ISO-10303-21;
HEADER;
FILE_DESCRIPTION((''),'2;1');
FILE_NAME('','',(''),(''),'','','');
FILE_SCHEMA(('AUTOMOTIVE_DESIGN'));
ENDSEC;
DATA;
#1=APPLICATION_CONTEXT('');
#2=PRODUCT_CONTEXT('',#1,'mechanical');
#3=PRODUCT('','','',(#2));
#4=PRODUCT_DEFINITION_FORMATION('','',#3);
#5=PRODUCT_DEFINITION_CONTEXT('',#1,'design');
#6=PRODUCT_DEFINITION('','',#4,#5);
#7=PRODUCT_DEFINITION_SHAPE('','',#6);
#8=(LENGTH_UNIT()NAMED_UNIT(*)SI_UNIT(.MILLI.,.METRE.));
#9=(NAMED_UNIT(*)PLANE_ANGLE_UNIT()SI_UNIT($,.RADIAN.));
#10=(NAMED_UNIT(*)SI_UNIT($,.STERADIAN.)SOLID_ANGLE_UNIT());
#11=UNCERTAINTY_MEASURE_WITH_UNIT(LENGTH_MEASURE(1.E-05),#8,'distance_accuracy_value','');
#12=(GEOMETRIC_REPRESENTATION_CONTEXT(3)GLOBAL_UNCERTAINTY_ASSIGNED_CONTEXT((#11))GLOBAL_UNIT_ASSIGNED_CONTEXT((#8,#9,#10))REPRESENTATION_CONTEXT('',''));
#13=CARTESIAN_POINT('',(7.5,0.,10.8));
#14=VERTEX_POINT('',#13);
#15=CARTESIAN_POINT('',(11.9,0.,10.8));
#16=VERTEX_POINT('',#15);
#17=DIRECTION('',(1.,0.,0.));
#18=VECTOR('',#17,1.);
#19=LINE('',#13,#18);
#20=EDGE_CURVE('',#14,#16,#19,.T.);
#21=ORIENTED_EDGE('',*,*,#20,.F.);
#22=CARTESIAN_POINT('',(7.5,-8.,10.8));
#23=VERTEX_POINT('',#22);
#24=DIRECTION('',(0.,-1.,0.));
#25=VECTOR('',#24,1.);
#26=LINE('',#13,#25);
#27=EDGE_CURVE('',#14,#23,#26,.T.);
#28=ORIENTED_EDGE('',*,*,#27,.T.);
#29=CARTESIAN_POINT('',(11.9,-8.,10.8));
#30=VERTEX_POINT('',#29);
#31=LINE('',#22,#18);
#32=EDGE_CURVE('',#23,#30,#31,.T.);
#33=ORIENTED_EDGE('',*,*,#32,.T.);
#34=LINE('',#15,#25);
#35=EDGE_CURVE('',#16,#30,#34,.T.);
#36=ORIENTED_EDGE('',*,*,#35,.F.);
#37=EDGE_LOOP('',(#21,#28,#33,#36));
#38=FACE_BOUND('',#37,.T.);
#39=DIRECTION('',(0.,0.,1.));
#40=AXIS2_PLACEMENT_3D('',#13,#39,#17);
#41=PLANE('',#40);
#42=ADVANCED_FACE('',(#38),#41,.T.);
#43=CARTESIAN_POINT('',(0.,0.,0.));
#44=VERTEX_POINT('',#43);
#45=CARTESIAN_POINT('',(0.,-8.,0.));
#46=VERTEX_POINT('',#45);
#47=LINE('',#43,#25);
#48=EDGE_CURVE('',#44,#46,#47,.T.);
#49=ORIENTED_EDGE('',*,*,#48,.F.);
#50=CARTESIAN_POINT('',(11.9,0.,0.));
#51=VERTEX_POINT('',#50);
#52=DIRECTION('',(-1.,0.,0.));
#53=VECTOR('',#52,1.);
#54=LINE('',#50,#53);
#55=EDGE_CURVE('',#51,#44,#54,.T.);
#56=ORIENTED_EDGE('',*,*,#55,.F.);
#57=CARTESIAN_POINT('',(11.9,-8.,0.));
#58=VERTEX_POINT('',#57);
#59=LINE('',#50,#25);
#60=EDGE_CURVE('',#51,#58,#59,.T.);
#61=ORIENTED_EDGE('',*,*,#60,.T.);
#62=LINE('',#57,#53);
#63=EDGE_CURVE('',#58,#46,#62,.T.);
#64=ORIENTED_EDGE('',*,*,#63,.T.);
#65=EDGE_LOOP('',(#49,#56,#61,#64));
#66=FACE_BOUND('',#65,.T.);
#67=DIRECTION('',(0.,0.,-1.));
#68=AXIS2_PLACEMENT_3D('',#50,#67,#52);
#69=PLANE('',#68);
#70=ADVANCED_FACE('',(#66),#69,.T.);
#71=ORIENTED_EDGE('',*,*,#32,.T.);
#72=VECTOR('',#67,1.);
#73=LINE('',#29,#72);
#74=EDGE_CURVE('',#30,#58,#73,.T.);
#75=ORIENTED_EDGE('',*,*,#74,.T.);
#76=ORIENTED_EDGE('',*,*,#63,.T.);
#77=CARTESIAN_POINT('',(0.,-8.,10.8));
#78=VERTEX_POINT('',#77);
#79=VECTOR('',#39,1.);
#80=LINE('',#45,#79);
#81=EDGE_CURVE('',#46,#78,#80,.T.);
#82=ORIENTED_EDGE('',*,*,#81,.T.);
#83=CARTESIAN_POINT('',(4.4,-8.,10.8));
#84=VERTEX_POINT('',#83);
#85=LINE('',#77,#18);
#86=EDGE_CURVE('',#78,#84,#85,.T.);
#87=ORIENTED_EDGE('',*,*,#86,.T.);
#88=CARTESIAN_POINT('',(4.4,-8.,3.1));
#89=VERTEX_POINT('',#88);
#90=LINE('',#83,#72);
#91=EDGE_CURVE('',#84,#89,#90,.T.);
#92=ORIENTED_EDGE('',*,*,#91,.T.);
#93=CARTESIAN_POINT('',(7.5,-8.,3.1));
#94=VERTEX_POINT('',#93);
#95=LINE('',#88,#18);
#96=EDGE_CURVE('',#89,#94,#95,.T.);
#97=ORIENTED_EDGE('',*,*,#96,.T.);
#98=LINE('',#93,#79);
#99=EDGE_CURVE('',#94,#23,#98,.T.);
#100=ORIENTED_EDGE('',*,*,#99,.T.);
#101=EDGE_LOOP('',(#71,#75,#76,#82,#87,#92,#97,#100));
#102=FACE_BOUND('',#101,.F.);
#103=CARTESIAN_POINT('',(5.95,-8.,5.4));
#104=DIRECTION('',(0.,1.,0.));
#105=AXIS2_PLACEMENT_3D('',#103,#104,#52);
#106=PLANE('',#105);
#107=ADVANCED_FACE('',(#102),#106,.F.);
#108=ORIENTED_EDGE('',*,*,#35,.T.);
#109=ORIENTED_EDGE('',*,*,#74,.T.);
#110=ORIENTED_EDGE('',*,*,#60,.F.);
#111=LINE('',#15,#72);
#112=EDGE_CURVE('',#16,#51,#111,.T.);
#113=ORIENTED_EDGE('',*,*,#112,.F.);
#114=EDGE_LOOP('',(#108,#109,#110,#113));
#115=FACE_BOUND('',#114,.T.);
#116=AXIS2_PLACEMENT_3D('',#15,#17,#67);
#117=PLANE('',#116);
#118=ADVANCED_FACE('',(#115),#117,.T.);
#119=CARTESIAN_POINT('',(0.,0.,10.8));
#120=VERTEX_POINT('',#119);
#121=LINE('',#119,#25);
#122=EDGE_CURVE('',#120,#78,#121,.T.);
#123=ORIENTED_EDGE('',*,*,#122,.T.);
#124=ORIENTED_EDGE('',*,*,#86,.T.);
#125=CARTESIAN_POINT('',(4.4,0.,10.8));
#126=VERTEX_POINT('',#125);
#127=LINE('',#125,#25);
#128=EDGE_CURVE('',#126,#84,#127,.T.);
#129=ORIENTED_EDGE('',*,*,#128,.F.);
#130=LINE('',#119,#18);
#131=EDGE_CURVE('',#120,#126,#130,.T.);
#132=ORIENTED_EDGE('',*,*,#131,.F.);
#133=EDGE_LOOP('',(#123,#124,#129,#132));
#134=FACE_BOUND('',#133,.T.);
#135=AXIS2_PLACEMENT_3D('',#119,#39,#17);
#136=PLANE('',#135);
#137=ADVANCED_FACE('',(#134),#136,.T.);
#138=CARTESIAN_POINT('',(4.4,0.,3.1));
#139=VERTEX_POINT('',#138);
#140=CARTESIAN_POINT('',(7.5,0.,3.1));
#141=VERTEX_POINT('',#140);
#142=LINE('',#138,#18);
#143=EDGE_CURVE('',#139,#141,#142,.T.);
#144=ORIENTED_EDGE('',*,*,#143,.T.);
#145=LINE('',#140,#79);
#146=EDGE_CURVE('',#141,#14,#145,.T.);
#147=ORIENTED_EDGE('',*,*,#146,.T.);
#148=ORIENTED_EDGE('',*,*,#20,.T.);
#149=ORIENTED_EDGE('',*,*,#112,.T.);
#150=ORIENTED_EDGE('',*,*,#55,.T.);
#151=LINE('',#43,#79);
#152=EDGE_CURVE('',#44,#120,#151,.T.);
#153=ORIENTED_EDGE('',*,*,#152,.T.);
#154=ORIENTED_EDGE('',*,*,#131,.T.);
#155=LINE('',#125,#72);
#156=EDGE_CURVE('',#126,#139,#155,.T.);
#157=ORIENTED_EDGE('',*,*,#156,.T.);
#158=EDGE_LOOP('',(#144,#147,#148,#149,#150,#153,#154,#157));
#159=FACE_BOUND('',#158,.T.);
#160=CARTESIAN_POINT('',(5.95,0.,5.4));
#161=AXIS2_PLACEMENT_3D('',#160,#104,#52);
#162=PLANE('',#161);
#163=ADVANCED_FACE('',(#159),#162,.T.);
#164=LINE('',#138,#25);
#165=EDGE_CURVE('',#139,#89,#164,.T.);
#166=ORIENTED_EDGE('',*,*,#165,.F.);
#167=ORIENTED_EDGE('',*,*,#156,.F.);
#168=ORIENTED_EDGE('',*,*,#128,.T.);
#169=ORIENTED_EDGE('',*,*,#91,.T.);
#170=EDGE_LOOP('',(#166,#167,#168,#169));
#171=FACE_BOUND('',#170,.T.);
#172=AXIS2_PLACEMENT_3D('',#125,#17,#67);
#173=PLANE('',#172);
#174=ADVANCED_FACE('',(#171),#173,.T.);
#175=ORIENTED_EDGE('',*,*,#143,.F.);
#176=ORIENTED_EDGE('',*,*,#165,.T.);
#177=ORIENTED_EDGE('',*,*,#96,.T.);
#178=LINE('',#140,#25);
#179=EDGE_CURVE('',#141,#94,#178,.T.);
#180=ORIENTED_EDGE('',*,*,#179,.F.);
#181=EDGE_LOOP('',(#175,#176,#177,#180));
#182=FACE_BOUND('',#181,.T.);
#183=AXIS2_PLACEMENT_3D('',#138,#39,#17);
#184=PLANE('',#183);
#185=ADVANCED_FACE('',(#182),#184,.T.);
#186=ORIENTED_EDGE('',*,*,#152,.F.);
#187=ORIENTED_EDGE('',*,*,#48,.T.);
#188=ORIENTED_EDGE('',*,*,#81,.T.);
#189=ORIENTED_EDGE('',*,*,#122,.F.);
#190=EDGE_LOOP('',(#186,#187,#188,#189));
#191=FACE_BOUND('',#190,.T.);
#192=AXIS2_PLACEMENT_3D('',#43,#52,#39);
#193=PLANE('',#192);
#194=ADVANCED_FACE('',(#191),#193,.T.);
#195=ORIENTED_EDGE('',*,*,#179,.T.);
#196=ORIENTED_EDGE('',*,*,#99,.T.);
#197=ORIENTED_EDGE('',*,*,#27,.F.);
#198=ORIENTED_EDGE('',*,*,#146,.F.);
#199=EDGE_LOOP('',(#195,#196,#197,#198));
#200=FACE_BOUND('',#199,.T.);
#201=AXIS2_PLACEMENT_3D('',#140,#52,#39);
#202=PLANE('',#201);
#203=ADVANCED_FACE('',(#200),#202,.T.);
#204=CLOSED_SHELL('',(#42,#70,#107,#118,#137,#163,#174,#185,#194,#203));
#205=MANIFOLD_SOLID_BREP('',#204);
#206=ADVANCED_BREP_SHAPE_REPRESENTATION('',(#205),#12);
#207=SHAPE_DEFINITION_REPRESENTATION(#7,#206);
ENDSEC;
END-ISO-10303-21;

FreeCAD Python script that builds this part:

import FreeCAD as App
import Part
import Sketcher
from FreeCAD import Vector
Q = App.Units.Quantity


def add_polygon(sketch, points):
    """Adds a closed chain of lines whose ends are joined by coincident constraints."""
    first, n = sketch.GeometryCount, len(points)
    for a, b in zip(points, points[1:] + points[:1]):
        sketch.addGeometry(Part.LineSegment(App.Vector(*a, 0), App.Vector(*b, 0)), False)
    for i in range(n):
        sketch.addConstraint(Sketcher.Constraint("Coincident", first + i, 2, first + (i + 1) % n, 1))

doc = App.newDocument("Part")
params = doc.addObject("Spreadsheet::Sheet", "Params")
for row, (alias, value) in enumerate([
    ("sketch1_width", "11.9 mm"),
    ("sketch1_width2", "4.4 mm"),
    ("sketch1_height", "10.8 mm"),
    ("sketch1_height2", "7.7 mm"),
    ("pad1_length", "8 mm"),
], start=1):
    params.set(f"A{row}", alias)
    params.set(f"B{row}", "=" + value)
    params.setAlias(f"B{row}", alias)

body = doc.addObject("PartDesign::Body", "Body")

# Sketch on XZ plane
sketch1 = body.newObject("Sketcher::SketchObject", "Sketch")
sketch1.AttachmentSupport = (doc.getObject("XZ_Plane"), [""])
sketch1.MapMode = "FlatFace"
add_polygon(sketch1, [(0, 10.8), (0, 0), (11.9, 0), (11.9, 10.8), (7.5, 10.8), (7.5, 3.1), (4.4, 3.1), (4.4, 10.8)])  # lines 0-7
sketch1.addConstraint([
    Sketcher.Constraint("Vertical", 0),
    Sketcher.Constraint("Horizontal", 1),
    Sketcher.Constraint("Vertical", 2),
    Sketcher.Constraint("Horizontal", 3),
    Sketcher.Constraint("Vertical", 4),
    Sketcher.Constraint("Horizontal", 5),
    Sketcher.Constraint("Vertical", 6),
    Sketcher.Constraint("Horizontal", 7),
    Sketcher.Constraint("Coincident", 0, 2, -1, 1),
    Sketcher.Constraint("Horizontal", 3, 2, 6, 2),
    Sketcher.Constraint("Equal", 3, 7),
    Sketcher.Constraint("DistanceX", 1, 1, 1, 2, Q("11.9 mm")),
    Sketcher.Constraint("DistanceX", 3, 2, 3, 1, Q("4.4 mm")),
    Sketcher.Constraint("DistanceY", 0, 2, 0, 1, Q("10.8 mm")),
    Sketcher.Constraint("DistanceY", 4, 2, 4, 1, Q("7.7 mm")),
])
sketch1.setExpression("Constraints[19]", "Params.sketch1_width")
sketch1.setExpression("Constraints[20]", "Params.sketch1_width2")
sketch1.setExpression("Constraints[21]", "Params.sketch1_height")
sketch1.setExpression("Constraints[22]", "Params.sketch1_height2")
pad1 = body.newObject("PartDesign::Pad", "Pad")
pad1.Profile = sketch1
pad1.setExpression("Length", "Params.pad1_length")

doc.recompute()
